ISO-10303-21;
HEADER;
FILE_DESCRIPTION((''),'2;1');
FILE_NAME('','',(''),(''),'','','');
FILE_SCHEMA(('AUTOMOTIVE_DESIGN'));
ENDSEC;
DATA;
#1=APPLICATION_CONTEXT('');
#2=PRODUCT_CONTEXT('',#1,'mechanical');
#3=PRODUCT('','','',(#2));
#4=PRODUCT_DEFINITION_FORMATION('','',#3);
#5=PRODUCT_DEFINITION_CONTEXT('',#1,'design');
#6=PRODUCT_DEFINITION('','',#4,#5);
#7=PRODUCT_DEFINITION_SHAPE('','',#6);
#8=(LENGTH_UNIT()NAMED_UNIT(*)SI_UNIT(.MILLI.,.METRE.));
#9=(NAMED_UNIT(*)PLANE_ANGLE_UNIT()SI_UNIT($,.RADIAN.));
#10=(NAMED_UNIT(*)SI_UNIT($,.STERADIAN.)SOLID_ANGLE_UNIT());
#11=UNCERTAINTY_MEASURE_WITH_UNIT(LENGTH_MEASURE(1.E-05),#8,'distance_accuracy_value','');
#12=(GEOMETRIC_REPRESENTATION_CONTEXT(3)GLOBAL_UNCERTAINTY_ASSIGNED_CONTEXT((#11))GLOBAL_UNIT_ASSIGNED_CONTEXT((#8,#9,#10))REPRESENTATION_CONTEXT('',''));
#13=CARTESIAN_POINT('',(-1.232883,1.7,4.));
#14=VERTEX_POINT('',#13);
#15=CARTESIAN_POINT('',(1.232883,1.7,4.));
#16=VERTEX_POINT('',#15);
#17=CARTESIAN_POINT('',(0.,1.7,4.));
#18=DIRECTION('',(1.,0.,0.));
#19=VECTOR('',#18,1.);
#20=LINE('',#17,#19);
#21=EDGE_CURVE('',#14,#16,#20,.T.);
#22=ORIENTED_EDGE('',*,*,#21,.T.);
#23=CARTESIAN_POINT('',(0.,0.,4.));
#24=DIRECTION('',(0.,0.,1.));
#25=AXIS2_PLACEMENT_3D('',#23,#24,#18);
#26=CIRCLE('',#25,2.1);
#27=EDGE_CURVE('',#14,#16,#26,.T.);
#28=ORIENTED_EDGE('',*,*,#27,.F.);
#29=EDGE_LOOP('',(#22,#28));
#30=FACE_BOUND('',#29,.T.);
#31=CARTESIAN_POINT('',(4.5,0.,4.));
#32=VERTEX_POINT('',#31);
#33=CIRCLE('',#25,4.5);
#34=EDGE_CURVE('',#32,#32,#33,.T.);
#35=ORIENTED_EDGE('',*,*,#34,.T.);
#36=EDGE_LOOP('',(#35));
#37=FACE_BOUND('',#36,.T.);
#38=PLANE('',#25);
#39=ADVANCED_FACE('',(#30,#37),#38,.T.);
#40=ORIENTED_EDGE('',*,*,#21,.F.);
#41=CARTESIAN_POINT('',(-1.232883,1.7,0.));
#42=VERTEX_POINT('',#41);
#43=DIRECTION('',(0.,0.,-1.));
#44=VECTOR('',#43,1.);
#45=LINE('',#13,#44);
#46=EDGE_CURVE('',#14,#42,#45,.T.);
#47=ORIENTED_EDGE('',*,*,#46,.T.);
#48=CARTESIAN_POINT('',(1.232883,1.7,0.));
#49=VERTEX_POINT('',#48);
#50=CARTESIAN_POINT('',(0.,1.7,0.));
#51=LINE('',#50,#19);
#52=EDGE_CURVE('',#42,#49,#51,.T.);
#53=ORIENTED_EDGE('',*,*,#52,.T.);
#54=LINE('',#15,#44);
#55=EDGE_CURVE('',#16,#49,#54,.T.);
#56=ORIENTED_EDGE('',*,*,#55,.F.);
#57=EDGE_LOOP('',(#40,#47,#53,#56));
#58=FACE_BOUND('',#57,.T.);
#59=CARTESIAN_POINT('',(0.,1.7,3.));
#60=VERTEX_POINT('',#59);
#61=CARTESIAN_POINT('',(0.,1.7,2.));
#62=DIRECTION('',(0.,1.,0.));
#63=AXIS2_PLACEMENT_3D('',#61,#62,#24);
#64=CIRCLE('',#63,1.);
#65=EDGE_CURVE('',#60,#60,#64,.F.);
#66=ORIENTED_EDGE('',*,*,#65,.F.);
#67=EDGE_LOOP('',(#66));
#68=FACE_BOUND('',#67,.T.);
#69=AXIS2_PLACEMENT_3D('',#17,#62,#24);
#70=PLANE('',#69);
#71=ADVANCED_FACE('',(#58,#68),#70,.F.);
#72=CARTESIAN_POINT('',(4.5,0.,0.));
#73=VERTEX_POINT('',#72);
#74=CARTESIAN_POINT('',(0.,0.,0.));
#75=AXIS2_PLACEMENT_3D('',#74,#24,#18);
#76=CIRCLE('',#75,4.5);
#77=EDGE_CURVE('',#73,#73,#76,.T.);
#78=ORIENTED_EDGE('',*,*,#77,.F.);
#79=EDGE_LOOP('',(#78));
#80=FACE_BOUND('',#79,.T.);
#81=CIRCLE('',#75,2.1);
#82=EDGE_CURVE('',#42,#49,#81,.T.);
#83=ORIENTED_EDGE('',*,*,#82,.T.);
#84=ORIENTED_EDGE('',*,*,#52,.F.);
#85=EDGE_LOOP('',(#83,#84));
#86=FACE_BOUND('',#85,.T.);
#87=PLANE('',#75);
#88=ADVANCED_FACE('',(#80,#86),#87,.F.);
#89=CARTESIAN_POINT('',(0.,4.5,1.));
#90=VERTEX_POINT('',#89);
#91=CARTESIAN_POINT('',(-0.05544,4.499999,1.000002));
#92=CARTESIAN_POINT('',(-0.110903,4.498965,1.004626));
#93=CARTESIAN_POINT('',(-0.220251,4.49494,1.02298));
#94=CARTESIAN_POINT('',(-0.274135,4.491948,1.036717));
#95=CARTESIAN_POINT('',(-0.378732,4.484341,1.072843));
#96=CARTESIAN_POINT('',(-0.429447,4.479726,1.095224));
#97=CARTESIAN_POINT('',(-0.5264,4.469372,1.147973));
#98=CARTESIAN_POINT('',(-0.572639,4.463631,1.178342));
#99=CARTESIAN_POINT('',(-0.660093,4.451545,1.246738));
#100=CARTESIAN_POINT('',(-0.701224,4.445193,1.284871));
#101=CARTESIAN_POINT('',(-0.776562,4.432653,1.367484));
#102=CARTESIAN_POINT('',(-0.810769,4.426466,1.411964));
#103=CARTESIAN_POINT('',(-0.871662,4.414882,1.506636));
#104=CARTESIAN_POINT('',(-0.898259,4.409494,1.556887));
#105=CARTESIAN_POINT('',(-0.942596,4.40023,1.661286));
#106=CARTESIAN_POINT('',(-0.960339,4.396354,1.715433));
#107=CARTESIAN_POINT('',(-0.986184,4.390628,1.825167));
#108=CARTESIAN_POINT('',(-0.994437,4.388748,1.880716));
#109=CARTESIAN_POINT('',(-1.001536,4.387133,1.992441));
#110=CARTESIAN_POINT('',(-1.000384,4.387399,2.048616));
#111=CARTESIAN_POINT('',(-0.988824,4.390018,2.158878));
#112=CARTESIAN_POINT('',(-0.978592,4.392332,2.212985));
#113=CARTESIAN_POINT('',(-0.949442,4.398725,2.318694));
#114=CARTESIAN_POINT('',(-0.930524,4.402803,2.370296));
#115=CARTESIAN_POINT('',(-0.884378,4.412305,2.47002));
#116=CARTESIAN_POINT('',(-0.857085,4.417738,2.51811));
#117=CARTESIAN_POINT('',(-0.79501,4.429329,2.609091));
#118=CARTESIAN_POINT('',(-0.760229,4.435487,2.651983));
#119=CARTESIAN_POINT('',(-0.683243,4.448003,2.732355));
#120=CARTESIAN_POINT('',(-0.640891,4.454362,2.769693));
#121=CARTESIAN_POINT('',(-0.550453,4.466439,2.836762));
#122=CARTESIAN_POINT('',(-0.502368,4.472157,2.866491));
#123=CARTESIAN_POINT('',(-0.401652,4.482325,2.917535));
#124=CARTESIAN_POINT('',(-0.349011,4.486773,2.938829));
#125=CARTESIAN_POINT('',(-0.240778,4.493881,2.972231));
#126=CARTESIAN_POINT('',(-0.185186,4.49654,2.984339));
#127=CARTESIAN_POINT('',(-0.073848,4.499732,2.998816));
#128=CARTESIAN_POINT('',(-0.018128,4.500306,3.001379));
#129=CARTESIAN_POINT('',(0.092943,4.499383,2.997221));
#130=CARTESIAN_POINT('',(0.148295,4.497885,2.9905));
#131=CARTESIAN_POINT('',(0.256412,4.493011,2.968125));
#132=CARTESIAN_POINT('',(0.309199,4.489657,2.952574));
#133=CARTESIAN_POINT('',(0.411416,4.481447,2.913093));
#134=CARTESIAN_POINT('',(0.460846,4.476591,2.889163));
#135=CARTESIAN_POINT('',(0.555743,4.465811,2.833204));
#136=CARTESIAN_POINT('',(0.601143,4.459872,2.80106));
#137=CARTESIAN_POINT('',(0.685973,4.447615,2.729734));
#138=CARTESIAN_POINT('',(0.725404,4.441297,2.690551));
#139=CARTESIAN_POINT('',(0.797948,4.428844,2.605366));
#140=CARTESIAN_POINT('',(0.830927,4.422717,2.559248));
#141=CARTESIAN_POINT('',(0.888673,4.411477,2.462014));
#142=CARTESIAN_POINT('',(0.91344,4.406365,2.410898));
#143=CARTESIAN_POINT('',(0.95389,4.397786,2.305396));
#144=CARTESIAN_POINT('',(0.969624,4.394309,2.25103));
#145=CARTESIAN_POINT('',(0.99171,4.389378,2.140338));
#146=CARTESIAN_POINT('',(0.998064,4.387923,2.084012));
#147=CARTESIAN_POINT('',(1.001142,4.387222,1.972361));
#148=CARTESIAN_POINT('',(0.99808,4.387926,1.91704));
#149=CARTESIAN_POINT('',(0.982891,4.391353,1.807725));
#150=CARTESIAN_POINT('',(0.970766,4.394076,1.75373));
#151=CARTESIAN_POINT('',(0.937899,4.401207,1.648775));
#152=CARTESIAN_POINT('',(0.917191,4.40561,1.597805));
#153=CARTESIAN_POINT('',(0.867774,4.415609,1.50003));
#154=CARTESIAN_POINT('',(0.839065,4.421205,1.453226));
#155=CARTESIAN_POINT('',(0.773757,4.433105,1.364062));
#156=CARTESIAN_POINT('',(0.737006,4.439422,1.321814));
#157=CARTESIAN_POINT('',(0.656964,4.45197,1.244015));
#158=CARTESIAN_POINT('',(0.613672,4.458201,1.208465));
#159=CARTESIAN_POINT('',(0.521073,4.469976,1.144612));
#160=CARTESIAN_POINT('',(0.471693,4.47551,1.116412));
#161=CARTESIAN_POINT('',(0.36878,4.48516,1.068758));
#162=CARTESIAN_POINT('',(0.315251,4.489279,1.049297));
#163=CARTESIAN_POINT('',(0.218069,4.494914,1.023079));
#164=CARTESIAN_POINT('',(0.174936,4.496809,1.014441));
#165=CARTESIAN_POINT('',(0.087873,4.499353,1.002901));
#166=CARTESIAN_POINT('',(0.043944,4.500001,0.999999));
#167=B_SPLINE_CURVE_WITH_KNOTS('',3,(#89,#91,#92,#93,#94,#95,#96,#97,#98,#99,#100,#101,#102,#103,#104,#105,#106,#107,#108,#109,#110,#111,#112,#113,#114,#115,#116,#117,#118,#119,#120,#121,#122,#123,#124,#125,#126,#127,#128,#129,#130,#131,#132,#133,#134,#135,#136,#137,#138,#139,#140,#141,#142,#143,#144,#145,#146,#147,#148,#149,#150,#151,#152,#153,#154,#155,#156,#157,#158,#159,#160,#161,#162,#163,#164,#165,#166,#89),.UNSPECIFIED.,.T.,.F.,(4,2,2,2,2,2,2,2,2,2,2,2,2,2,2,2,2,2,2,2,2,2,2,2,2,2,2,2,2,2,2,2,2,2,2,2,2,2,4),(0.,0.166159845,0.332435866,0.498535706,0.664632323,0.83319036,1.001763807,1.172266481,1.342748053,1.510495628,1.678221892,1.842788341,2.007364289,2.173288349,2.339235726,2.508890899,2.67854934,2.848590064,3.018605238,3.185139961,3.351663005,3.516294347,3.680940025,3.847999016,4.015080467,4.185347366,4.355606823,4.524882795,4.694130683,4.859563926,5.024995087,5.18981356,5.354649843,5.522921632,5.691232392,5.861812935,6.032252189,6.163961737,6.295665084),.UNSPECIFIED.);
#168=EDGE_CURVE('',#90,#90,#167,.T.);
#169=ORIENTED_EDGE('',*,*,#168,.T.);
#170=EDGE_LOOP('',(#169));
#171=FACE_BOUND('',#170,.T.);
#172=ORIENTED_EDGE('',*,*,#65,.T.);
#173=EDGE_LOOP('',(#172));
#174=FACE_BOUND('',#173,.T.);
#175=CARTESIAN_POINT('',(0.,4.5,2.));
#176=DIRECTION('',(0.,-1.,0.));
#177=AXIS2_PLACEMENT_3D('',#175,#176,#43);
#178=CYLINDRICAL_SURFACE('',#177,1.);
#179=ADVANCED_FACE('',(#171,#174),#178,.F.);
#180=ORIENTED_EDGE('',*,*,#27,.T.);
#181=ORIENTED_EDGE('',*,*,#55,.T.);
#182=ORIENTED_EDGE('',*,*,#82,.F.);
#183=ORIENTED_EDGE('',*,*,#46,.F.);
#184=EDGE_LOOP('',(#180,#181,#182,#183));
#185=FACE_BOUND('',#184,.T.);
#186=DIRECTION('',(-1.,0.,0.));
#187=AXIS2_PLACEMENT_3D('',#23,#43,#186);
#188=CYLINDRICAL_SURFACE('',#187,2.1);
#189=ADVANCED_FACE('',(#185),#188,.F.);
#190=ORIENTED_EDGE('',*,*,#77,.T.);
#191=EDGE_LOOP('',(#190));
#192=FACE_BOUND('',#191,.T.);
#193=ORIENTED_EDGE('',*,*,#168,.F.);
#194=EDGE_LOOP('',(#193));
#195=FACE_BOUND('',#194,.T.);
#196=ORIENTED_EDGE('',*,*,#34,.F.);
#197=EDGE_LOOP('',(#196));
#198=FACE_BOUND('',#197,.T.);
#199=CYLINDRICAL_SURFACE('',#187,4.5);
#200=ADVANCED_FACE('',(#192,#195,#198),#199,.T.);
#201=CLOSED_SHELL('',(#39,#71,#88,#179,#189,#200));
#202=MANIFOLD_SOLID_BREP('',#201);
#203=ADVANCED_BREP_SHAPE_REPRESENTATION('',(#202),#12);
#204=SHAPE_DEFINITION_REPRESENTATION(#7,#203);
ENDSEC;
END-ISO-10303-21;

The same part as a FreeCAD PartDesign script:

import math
import FreeCAD as App
import Part
import Sketcher

V = App.Vector

doc = App.newDocument("Part")
body = doc.addObject("PartDesign::Body", "Body")

sketch1 = body.newObject("Sketcher::SketchObject", "Sketch")
sketch1.AttachmentSupport = (doc.getObject("XY_Plane"), [""])
sketch1.MapMode = "FlatFace"
sketch1.addGeometry(Part.Circle(V(0, 0, 0), V(0, 0, 1), 4.5), False)
sketch1.addGeometry(Part.ArcOfCircle(Part.Circle(V(0, 0, 0), V(0, 0, 1), 2.1), math.radians(126), math.radians(414)), False)
sketch1.addGeometry(Part.LineSegment(V(-1.2, 1.7, 0), V(1.2, 1.7, 0)), False)
sketch1.addConstraint(Sketcher.Constraint("Coincident", 1, 1, 2, 1))
sketch1.addConstraint(Sketcher.Constraint("Coincident", 2, 2, 1, 2))
sketch1.addConstraint(Sketcher.Constraint("Horizontal", 2))
sketch1.addConstraint(Sketcher.Constraint("Coincident", 0, 3, -1, 1))
sketch1.addConstraint(Sketcher.Constraint("Coincident", 1, 3, -1, 1))
sketch1.addConstraint(Sketcher.Constraint("Diameter", 0, 9.0))
sketch1.addConstraint(Sketcher.Constraint("Radius", 1, 2.1))
sketch1.addConstraint(Sketcher.Constraint("DistanceY", -1, 1, 1, 1, 1.7))
pad1 = body.newObject("PartDesign::Pad", "Pad")
pad1.Profile = sketch1
pad1.Length = 4

sketch2 = body.newObject("Sketcher::SketchObject", "Sketch001")
sketch2.AttachmentSupport = (doc.getObject("XZ_Plane"), [""])
sketch2.MapMode = "FlatFace"
sketch2.addGeometry(Part.Circle(V(0, 2, 0), V(0, 0, 1), 1), False)
sketch2.addConstraint(Sketcher.Constraint("PointOnObject", 0, 3, -2))
sketch2.addConstraint(Sketcher.Constraint("Diameter", 0, 2.0))
sketch2.addConstraint(Sketcher.Constraint("DistanceY", -1, 1, 0, 3, 2.0))
pocket1 = body.newObject("PartDesign::Pocket", "Pocket")
pocket1.Profile = sketch2
pocket1.Type = "ThroughAll"

doc.recompute()
